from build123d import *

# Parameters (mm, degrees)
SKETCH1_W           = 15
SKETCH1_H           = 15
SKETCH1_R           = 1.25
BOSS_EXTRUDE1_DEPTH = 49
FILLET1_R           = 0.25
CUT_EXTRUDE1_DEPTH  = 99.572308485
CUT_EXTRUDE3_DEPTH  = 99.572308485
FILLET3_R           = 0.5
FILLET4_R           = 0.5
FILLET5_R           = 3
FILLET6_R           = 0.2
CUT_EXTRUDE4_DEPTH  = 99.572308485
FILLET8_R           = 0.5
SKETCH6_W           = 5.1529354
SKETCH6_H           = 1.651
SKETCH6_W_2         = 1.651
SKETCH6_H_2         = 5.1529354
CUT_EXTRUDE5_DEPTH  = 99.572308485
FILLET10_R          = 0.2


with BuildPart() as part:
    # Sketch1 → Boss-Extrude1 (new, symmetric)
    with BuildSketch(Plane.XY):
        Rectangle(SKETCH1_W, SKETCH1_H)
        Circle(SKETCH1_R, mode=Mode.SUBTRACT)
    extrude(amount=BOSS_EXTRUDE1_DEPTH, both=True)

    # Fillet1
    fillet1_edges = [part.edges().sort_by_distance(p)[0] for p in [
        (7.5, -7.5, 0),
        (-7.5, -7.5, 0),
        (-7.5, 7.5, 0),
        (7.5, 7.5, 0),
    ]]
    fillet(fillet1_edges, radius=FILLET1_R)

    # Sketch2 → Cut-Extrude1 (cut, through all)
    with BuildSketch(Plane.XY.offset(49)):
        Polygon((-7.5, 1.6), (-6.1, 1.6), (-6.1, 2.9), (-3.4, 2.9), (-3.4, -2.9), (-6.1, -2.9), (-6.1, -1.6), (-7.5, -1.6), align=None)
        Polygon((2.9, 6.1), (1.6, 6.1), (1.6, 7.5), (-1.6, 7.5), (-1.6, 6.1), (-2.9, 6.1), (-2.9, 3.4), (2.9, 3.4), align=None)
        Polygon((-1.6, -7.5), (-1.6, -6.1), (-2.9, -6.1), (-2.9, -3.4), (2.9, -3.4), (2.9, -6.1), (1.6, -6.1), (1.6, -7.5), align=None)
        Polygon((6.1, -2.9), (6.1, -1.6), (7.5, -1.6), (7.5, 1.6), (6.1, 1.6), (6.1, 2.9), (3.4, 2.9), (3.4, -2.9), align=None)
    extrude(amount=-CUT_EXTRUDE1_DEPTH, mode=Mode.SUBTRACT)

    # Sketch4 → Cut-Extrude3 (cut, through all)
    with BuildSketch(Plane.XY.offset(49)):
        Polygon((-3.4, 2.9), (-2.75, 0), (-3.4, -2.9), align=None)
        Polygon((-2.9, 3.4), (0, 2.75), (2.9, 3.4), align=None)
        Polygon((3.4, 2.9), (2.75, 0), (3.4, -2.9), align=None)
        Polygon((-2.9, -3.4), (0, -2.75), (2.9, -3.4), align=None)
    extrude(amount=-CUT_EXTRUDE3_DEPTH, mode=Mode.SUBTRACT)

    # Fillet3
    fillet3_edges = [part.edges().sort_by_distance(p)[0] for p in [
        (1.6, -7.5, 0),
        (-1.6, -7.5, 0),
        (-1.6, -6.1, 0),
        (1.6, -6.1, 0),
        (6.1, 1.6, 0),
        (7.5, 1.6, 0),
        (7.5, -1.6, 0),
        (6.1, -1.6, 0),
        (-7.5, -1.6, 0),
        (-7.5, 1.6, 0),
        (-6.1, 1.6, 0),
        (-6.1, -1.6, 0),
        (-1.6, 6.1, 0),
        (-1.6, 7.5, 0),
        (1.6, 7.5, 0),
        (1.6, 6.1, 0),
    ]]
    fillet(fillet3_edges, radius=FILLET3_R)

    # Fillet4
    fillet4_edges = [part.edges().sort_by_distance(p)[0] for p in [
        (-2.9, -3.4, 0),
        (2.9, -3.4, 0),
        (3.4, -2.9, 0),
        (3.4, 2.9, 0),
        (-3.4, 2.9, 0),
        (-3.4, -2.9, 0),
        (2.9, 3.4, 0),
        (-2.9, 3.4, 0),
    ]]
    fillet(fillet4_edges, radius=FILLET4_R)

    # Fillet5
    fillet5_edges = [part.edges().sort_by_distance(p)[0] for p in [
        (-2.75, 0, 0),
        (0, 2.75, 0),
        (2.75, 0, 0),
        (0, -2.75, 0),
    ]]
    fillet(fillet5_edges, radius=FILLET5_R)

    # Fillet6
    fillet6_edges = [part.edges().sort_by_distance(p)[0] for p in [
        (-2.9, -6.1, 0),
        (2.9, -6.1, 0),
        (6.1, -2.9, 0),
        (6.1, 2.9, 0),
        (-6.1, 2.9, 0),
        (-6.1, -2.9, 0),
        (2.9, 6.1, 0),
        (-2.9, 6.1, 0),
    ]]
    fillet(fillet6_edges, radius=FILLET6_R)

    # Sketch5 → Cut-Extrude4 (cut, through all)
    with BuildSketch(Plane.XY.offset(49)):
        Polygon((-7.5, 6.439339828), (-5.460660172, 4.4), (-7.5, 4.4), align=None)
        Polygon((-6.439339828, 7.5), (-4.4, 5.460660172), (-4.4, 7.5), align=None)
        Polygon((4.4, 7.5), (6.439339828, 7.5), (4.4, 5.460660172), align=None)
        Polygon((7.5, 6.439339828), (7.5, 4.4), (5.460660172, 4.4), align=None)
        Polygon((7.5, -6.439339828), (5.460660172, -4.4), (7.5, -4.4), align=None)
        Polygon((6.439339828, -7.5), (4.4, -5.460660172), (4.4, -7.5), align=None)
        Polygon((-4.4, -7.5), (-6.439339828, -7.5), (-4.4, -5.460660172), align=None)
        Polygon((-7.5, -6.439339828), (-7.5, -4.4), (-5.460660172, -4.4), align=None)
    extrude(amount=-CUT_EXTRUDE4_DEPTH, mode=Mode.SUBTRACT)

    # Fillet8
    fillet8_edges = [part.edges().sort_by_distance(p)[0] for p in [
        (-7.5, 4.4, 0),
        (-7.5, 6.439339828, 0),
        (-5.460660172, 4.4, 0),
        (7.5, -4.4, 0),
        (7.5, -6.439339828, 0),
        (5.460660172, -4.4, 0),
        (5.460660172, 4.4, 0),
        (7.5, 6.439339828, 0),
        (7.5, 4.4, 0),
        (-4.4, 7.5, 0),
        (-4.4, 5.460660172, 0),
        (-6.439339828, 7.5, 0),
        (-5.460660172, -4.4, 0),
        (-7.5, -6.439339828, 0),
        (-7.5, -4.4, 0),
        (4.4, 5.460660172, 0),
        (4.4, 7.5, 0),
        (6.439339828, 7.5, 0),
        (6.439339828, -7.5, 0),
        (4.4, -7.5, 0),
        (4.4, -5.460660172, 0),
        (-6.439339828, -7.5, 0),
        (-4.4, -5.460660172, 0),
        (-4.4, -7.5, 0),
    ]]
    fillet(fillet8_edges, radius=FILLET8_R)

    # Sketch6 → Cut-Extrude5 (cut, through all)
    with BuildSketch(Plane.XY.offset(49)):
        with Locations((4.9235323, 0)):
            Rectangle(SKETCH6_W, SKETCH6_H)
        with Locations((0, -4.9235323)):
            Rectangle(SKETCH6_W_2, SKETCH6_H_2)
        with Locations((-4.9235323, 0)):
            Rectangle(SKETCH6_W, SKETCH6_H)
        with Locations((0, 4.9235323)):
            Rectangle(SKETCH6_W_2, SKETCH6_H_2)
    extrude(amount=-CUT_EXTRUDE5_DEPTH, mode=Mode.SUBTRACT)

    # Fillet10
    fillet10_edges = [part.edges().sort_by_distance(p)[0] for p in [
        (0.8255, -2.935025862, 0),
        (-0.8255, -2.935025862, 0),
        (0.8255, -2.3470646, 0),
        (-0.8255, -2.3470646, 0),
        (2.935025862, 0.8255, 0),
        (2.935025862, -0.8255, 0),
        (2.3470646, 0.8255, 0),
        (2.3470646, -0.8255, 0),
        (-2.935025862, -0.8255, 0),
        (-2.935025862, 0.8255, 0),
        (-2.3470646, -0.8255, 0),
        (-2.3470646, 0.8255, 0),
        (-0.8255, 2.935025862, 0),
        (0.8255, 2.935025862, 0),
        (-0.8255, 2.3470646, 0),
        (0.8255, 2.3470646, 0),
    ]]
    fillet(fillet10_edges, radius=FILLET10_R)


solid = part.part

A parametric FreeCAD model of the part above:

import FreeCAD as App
import Part
import Sketcher
from FreeCAD import Vector
Q = App.Units.Quantity


def edges_at(feature, points):
    """Names of the edges that pass closest to the given points."""
    edges = feature.Shape.Edges
    near = lambda p: min(range(len(edges)), key=lambda i: edges[i].distToShape(Part.Vertex(*p))[0])
    return sorted({f"Edge{near(p) + 1}" for p in points})


def add_polygon(sketch, points):
    """Adds a closed chain of lines whose ends are joined by coincident constraints."""
    first, n = sketch.GeometryCount, len(points)
    for a, b in zip(points, points[1:] + points[:1]):
        sketch.addGeometry(Part.LineSegment(App.Vector(*a, 0), App.Vector(*b, 0)), False)
    for i in range(n):
        sketch.addConstraint(Sketcher.Constraint("Coincident", first + i, 2, first + (i + 1) % n, 1))

doc = App.newDocument("Part")
body = doc.addObject("PartDesign::Body", "Body")

# Sketch on XY plane
sketch1 = doc.addObject("Sketcher::SketchObject", "Sketch")
body.addObject(sketch1)
sketch1.AttachmentSupport = (doc.XY_Plane, [""])
sketch1.MapMode = "FlatFace"
add_polygon(sketch1, [(-7.5, 7.5), (-7.5, -7.5), (7.5, -7.5), (7.5, 7.5)])  # lines 0-3
sketch1.addGeometry(Part.Circle(Vector(0, 0, 0), Vector(0, 0, 1), 1.2), False)  # 4
sketch1.addConstraint([
    Sketcher.Constraint("Vertical", 0),
    Sketcher.Constraint("Horizontal", 1),
    Sketcher.Constraint("Vertical", 2),
    Sketcher.Constraint("Horizontal", 3),
    Sketcher.Constraint("Coincident", 4, 3, -1, 1),
    Sketcher.Constraint("Symmetric", 0, 2, 2, 2, -1, 1),
    Sketcher.Constraint("Equal", 3, 0),
    Sketcher.Constraint("Diameter", 4, Q("2.5 mm")),
    Sketcher.Constraint("DistanceX", 1, 1, 1, 2, Q("15 mm")),
])
pad1 = doc.addObject("PartDesign::Pad", "Pad")
body.addObject(pad1)
pad1.Profile = sketch1
pad1.Length = 98
pad1.Midplane = True
doc.recompute()

fillet = doc.addObject("PartDesign::Fillet", "Fillet")
body.addObject(fillet)
fillet.Base = (pad1, edges_at(pad1, [
    (7.5, -7.5, 0),
    (-7.5, -7.5, 0),
    (-7.5, 7.5, 0),
    (7.5, 7.5, 0),
]))
fillet.Radius = 0.25

# Sketch on XY plane
sketch2 = doc.addObject("Sketcher::SketchObject", "Sketch001")
body.addObject(sketch2)
sketch2.AttachmentSupport = (doc.XY_Plane, [""])
sketch2.MapMode = "FlatFace"
sketch2.AttachmentOffset = App.Placement(Vector(0, 0, 49), App.Rotation())
add_polygon(sketch2, [(-6.1, 1.6), (-7.5, 1.6), (-7.5, -1.6), (-6.1, -1.6), (-6.1, -2.9), (-3.4, -2.9), (-3.4, 2.9), (-6.1, 2.9)])  # lines 0-7
add_polygon(sketch2, [(2.9, 6.1), (1.6, 6.1), (1.6, 7.5), (-1.6, 7.5), (-1.6, 6.1), (-2.9, 6.1), (-2.9, 3.4), (2.9, 3.4)])  # lines 8-15
add_polygon(sketch2, [(-1.6, -6.1), (-1.6, -7.5), (1.6, -7.5), (1.6, -6.1), (2.9, -6.1), (2.9, -3.4), (-2.9, -3.4), (-2.9, -6.1)])  # lines 16-23
add_polygon(sketch2, [(6.1, -2.9), (6.1, -1.6), (7.5, -1.6), (7.5, 1.6), (6.1, 1.6), (6.1, 2.9), (3.4, 2.9), (3.4, -2.9)])  # lines 24-31
sketch2.addConstraint([
    Sketcher.Constraint("Horizontal", 0),
    Sketcher.Constraint("Vertical", 1),
    Sketcher.Constraint("Horizontal", 2),
    Sketcher.Constraint("Vertical", 3),
    Sketcher.Constraint("Horizontal", 4),
    Sketcher.Constraint("Vertical", 5),
    Sketcher.Constraint("Horizontal", 6),
    Sketcher.Constraint("Vertical", 7),
    Sketcher.Constraint("Horizontal", 8),
    Sketcher.Constraint("Vertical", 9),
    Sketcher.Constraint("Horizontal", 10),
    Sketcher.Constraint("Vertical", 11),
    Sketcher.Constraint("Horizontal", 12),
    Sketcher.Constraint("Vertical", 13),
    Sketcher.Constraint("Horizontal", 14),
    Sketcher.Constraint("Vertical", 15),
    Sketcher.Constraint("Vertical", 16),
    Sketcher.Constraint("Horizontal", 17),
    Sketcher.Constraint("Vertical", 18),
    Sketcher.Constraint("Horizontal", 19),
    Sketcher.Constraint("Vertical", 20),
    Sketcher.Constraint("Horizontal", 21),
    Sketcher.Constraint("Vertical", 22),
    Sketcher.Constraint("Horizontal", 23),
    Sketcher.Constraint("Vertical", 24),
    Sketcher.Constraint("Horizontal", 25),
    Sketcher.Constraint("Vertical", 26),
    Sketcher.Constraint("Horizontal", 27),
    Sketcher.Constraint("Vertical", 28),
    Sketcher.Constraint("Horizontal", 29),
    Sketcher.Constraint("Vertical", 30),
    Sketcher.Constraint("Horizontal", 31),
    Sketcher.Constraint("Symmetric", 9, 2, 16, 2, -1, 1),
    Sketcher.Constraint("Symmetric", 11, 2, 18, 2, -1, 1),
    Sketcher.Constraint("Symmetric", 13, 2, 20, 2, -1, 1),
    Sketcher.Constraint("Symmetric", 15, 2, 22, 2, -1, 1),
    Sketcher.Constraint("Symmetric", 7, 2, 24, 2, -1, 1),
    Sketcher.Constraint("Symmetric", 1, 2, 26, 2, -1, 1),
    Sketcher.Constraint("Symmetric", 3, 2, 28, 2, -1, 1),
    Sketcher.Constraint("Symmetric", 5, 2, 30, 2, -1, 1),
    Sketcher.Constraint("Symmetric", 8, 2, 11, 2, -2),
    Sketcher.Constraint("Symmetric", 2, 2, 24, 2, -2),
    Sketcher.Constraint("Horizontal", 6, 2, 28, 2),
    Sketcher.Constraint("Vertical", 15, 2, 19, 2),
    Sketcher.Constraint("Equal", 17, 1),
    Sketcher.Constraint("Equal", 23, 3),
    Sketcher.Constraint("Equal", 27, 9),
    Sketcher.Constraint("Equal", 31, 13),
    Sketcher.Constraint("DistanceX", 0, 2, 0, 1, Q("1.4 mm")),
    Sketcher.Constraint("DistanceX", 4, 1, 4, 2, Q("2.7 mm")),
    Sketcher.Constraint("DistanceX", 8, 2, 8, 1, Q("1.3 mm")),
    Sketcher.Constraint("DistanceX", 10, 2, 10, 1, Q("3.2 mm")),
    Sketcher.Constraint("DistanceX", 5, 2, 8, 2, Q("5 mm")),
    Sketcher.Constraint("DistanceY", 4, 2, 8, 2, Q("9 mm")),
])
pocket1 = doc.addObject("PartDesign::Pocket", "Pocket")
body.addObject(pocket1)
pocket1.Profile = sketch2
pocket1.Type = "ThroughAll"

# Sketch on XY plane
sketch3 = doc.addObject("Sketcher::SketchObject", "Sketch002")
body.addObject(sketch3)
sketch3.AttachmentSupport = (doc.XY_Plane, [""])
sketch3.MapMode = "FlatFace"
sketch3.AttachmentOffset = App.Placement(Vector(0, 0, 49), App.Rotation())
add_polygon(sketch3, [(-2.8, 0), (-3.4, 2.9), (-3.4, -2.9)])  # lines 0-2
add_polygon(sketch3, [(-2.9, 3.4), (0, 2.8), (2.9, 3.4)])  # lines 3-5
add_polygon(sketch3, [(3.4, 2.9), (2.8, 0), (3.4, -2.9)])  # lines 6-8
add_polygon(sketch3, [(0, -2.8), (-2.9, -3.4), (2.9, -3.4)])  # lines 9-11
sketch3.addConstraint([
    Sketcher.Constraint("Vertical", 1),
    Sketcher.Constraint("Horizontal", 5),
    Sketcher.Constraint("Vertical", 8),
    Sketcher.Constraint("Horizontal", 10),
    Sketcher.Constraint("Symmetric", 2, 2, 6, 2, -1, 1),
    Sketcher.Constraint("Symmetric", 0, 2, 7, 2, -1, 1),
    Sketcher.Constraint("Symmetric", 4, 2, 9, 2, -1, 1),
    Sketcher.Constraint("Symmetric", 3, 2, 11, 2, -1, 1),
    Sketcher.Constraint("PointOnObject", 2, 2, -1),
    Sketcher.Constraint("PointOnObject", 3, 2, -2),
    Sketcher.Constraint("Perpendicular", 2, 3),
    Sketcher.Constraint("Perpendicular", 0, 4),
    Sketcher.Constraint("Perpendicular", 3, 6),
    Sketcher.Constraint("Perpendicular", 6, 11),
    Sketcher.Constraint("Horizontal", 1, 2, 7, 2),
    Sketcher.Constraint("Equal", 10, 1),
    Sketcher.Constraint("DistanceX", 5, 2, 5, 1, Q("5.8 mm")),
    Sketcher.Constraint("DistanceX", 0, 2, -1, 1, Q("3.4 mm")),
    Sketcher.Constraint("DistanceY", -1, 1, 4, 2, Q("3.4 mm")),
    Sketcher.Constraint("DistanceX", 2, 2, 6, 2, Q("5.5 mm")),
])
pocket2 = doc.addObject("PartDesign::Pocket", "Pocket001")
body.addObject(pocket2)
pocket2.Profile = sketch3
pocket2.Type = "ThroughAll"
doc.recompute()

fillet2 = doc.addObject("PartDesign::Fillet", "Fillet001")
body.addObject(fillet2)
fillet2.Base = (pocket2, edges_at(pocket2, [
    (1.6, -7.5, 0),
    (-1.6, -7.5, 0),
    (-1.6, -6.1, 0),
    (1.6, -6.1, 0),
    (6.1, 1.6, 0),
    (7.5, 1.6, 0),
    (7.5, -1.6, 0),
    (6.1, -1.6, 0),
    (-7.5, -1.6, 0),
    (-7.5, 1.6, 0),
    (-6.1, 1.6, 0),
    (-6.1, -1.6, 0),
    (-1.6, 6.1, 0),
    (-1.6, 7.5, 0),
    (1.6, 7.5, 0),
    (1.6, 6.1, 0),
]))
fillet2.Radius = 0.5
doc.recompute()

fillet3 = doc.addObject("PartDesign::Fillet", "Fillet002")
body.addObject(fillet3)
fillet3.Base = (fillet2, edges_at(fillet2, [
    (-2.9, -3.4, 0),
    (2.9, -3.4, 0),
    (3.4, -2.9, 0),
    (3.4, 2.9, 0),
    (-3.4, 2.9, 0),
    (-3.4, -2.9, 0),
    (2.9, 3.4, 0),
    (-2.9, 3.4, 0),
]))
fillet3.Radius = 0.5
doc.recompute()

fillet4 = doc.addObject("PartDesign::Fillet", "Fillet003")
body.addObject(fillet4)
fillet4.Base = (fillet3, edges_at(fillet3, [
    (-2.75, 0, 0),
    (0, 2.75, 0),
    (2.75, 0, 0),
    (0, -2.75, 0),
]))
fillet4.Radius = 3
doc.recompute()

fillet5 = doc.addObject("PartDesign::Fillet", "Fillet004")
body.addObject(fillet5)
fillet5.Base = (fillet4, edges_at(fillet4, [
    (-2.9, -6.1, 0),
    (2.9, -6.1, 0),
    (6.1, -2.9, 0),
    (6.1, 2.9, 0),
    (-6.1, 2.9, 0),
    (-6.1, -2.9, 0),
    (2.9, 6.1, 0),
    (-2.9, 6.1, 0),
]))
fillet5.Radius = 0.2

# Sketch on XY plane
sketch4 = doc.addObject("Sketcher::SketchObject", "Sketch003")
body.addObject(sketch4)
sketch4.AttachmentSupport = (doc.XY_Plane, [""])
sketch4.MapMode = "FlatFace"
sketch4.AttachmentOffset = App.Placement(Vector(0, 0, 49), App.Rotation())
add_polygon(sketch4, [(-5.5, 4.4), (-7.5, 6.4), (-7.5, 4.4)])  # lines 0-2
add_polygon(sketch4, [(-6.4, 7.5), (-4.4, 5.5), (-4.4, 7.5)])  # lines 3-5
add_polygon(sketch4, [(6.4, 7.5), (4.4, 7.5), (4.4, 5.5)])  # lines 6-8
add_polygon(sketch4, [(7.5, 4.4), (7.5, 6.4), (5.5, 4.4)])  # lines 9-11
add_polygon(sketch4, [(5.5, -4.4), (7.5, -6.4), (7.5, -4.4)])  # lines 12-14
add_polygon(sketch4, [(6.4, -7.5), (4.4, -5.5), (4.4, -7.5)])  # lines 15-17
add_polygon(sketch4, [(-6.4, -7.5), (-4.4, -7.5), (-4.4, -5.5)])  # lines 18-20
add_polygon(sketch4, [(-7.5, -4.4), (-7.5, -6.4), (-5.5, -4.4)])  # lines 21-23
sketch4.addConstraint([
    Sketcher.Constraint("Vertical", 1),
    Sketcher.Constraint("Horizontal", 2),
    Sketcher.Constraint("Vertical", 4),
    Sketcher.Constraint("Horizontal", 5),
    Sketcher.Constraint("Horizontal", 6),
    Sketcher.Constraint("Vertical", 7),
    Sketcher.Constraint("Vertical", 9),
    Sketcher.Constraint("Horizontal", 11),
    Sketcher.Constraint("Vertical", 13),
    Sketcher.Constraint("Horizontal", 14),
    Sketcher.Constraint("Vertical", 16),
    Sketcher.Constraint("Horizontal", 17),
    Sketcher.Constraint("Horizontal", 18),
    Sketcher.Constraint("Vertical", 19),
    Sketcher.Constraint("Vertical", 21),
    Sketcher.Constraint("Horizontal", 23),
    Sketcher.Constraint("Symmetric", 0, 2, 12, 2, -1, 1),
    Sketcher.Constraint("Symmetric", 2, 2, 14, 2, -1, 1),
    Sketcher.Constraint("Symmetric", 3, 2, 15, 2, -1, 1),
    Sketcher.Constraint("Symmetric", 5, 2, 17, 2, -1, 1),
    Sketcher.Constraint("Symmetric", 6, 2, 18, 2, -1, 1),
    Sketcher.Constraint("Symmetric", 9, 2, 21, 2, -1, 1),
    Sketcher.Constraint("Symmetric", 10, 2, 22, 2, -1, 1),
    Sketcher.Constraint("Symmetric", 4, 2, 6, 2, -2),
    Sketcher.Constraint("Symmetric", 0, 2, 9, 2, -2),
    Sketcher.Constraint("Symmetric", 2, 2, 10, 2, -2),
    Sketcher.Constraint("Parallel", 0, 3),
    Sketcher.Constraint("Perpendicular", 3, 8),
    Sketcher.Constraint("Parallel", 8, 10),
    Sketcher.Constraint("Perpendicular", 15, 20),
    Sketcher.Constraint("Horizontal", 3, 2, 7, 2),
    Sketcher.Constraint("Horizontal", 15, 2, 19, 2),
    Sketcher.Constraint("Equal", 2, 5),
    Sketcher.Constraint("DistanceX", 0, 2, -1, 1, Q("7.5 mm")),
    Sketcher.Constraint("DistanceY", -1, 1, 1, 2, Q("4.4 mm")),
    Sketcher.Constraint("DistanceX", 3, 2, -1, 1, Q("4.4 mm")),
    Sketcher.Constraint("DistanceY", -1, 1, 4, 2, Q("7.5 mm")),
    Sketcher.Constraint("DistanceX", 2, 1, 2, 2, Q("2.03934 mm")),
])
pocket3 = doc.addObject("PartDesign::Pocket", "Pocket002")
body.addObject(pocket3)
pocket3.Profile = sketch4
pocket3.Type = "ThroughAll"
doc.recompute()

fillet6 = doc.addObject("PartDesign::Fillet", "Fillet005")
body.addObject(fillet6)
fillet6.Base = (pocket3, edges_at(pocket3, [
    (-7.5, 4.4, 0),
    (-7.5, 6.439, 0),
    (-5.461, 4.4, 0),
    (7.5, -4.4, 0),
    (7.5, -6.439, 0),
    (5.461, -4.4, 0),
    (5.461, 4.4, 0),
    (7.5, 6.439, 0),
    (7.5, 4.4, 0),
    (-4.4, 7.5, 0),
    (-4.4, 5.461, 0),
    (-6.439, 7.5, 0),
    (-5.461, -4.4, 0),
    (-7.5, -6.439, 0),
    (-7.5, -4.4, 0),
    (4.4, 5.461, 0),
    (4.4, 7.5, 0),
    (6.439, 7.5, 0),
    (6.439, -7.5, 0),
    (4.4, -7.5, 0),
    (4.4, -5.461, 0),
    (-6.439, -7.5, 0),
    (-4.4, -5.461, 0),
    (-4.4, -7.5, 0),
]))
fillet6.Radius = 0.5

# Sketch on XY plane
sketch5 = doc.addObject("Sketcher::SketchObject", "Sketch004")
body.addObject(sketch5)
sketch5.AttachmentSupport = (doc.XY_Plane, [""])
sketch5.MapMode = "FlatFace"
sketch5.AttachmentOffset = App.Placement(Vector(0, 0, 49), App.Rotation())
add_polygon(sketch5, [(2.3, 0.8), (2.3, -0.8), (7.5, -0.8), (7.5, 0.8)])  # lines 0-3
add_polygon(sketch5, [(-0.8, -2.3), (-0.8, -7.5), (0.8, -7.5), (0.8, -2.3)])  # lines 4-7
add_polygon(sketch5, [(-7.5, 0.8), (-7.5, -0.8), (-2.3, -0.8), (-2.3, 0.8)])  # lines 8-11
add_polygon(sketch5, [(-0.8, 7.5), (-0.8, 2.3), (0.8, 2.3), (0.8, 7.5)])  # lines 12-15
sketch5.addConstraint([
    Sketcher.Constraint("Vertical", 0),
    Sketcher.Constraint("Horizontal", 1),
    Sketcher.Constraint("Vertical", 2),
    Sketcher.Constraint("Horizontal", 3),
    Sketcher.Constraint("Vertical", 4),
    Sketcher.Constraint("Horizontal", 5),
    Sketcher.Constraint("Vertical", 6),
    Sketcher.Constraint("Horizontal", 7),
    Sketcher.Constraint("Vertical", 8),
    Sketcher.Constraint("Horizontal", 9),
    Sketcher.Constraint("Vertical", 10),
    Sketcher.Constraint("Horizontal", 11),
    Sketcher.Constraint("Vertical", 12),
    Sketcher.Constraint("Horizontal", 13),
    Sketcher.Constraint("Vertical", 14),
    Sketcher.Constraint("Horizontal", 15),
    Sketcher.Constraint("Symmetric", 2, 2, 8, 2, -1, 1),
    Sketcher.Constraint("Symmetric", 0, 2, 10, 2, -1, 1),
    Sketcher.Constraint("Symmetric", 6, 2, 12, 2, -1, 1),
    Sketcher.Constraint("Symmetric", 4, 2, 14, 2, -1, 1),
    Sketcher.Constraint("Horizontal", 1, 2, 8, 2),
    Sketcher.Constraint("Vertical", 7, 2, 12, 2),
    Sketcher.Constraint("Equal", 15, 0),
    Sketcher.Constraint("Equal", 11, 4),
    Sketcher.Constraint("DistanceX", -1, 1, 1, 2, Q("7.5 mm")),
    Sketcher.Constraint("DistanceY", 4, 2, -1, 1, Q("7.5 mm")),
    Sketcher.Constraint("DistanceX", 5, 1, 5, 2, Q("1.651 mm")),
    Sketcher.Constraint("DistanceX", 1, 1, 1, 2, Q("5.152935 mm")),
])
pocket4 = doc.addObject("PartDesign::Pocket", "Pocket003")
body.addObject(pocket4)
pocket4.Profile = sketch5
pocket4.Type = "ThroughAll"
doc.recompute()

fillet7 = doc.addObject("PartDesign::Fillet", "Fillet006")
body.addObject(fillet7)
fillet7.Base = (pocket4, edges_at(pocket4, [
    (0.826, -2.935, 0),
    (-0.826, -2.935, 0),
    (0.826, -2.347, 0),
    (-0.826, -2.347, 0),
    (2.935, 0.826, 0),
    (2.935, -0.826, 0),
    (2.347, 0.826, 0),
    (2.347, -0.826, 0),
    (-2.935, -0.826, 0),
    (-2.935, 0.826, 0),
    (-2.347, -0.826, 0),
    (-2.347, 0.826, 0),
    (-0.826, 2.935, 0),
    (0.826, 2.935, 0),
    (-0.826, 2.347, 0),
    (0.826, 2.347, 0),
]))
fillet7.Radius = 0.2

doc.recompute()
